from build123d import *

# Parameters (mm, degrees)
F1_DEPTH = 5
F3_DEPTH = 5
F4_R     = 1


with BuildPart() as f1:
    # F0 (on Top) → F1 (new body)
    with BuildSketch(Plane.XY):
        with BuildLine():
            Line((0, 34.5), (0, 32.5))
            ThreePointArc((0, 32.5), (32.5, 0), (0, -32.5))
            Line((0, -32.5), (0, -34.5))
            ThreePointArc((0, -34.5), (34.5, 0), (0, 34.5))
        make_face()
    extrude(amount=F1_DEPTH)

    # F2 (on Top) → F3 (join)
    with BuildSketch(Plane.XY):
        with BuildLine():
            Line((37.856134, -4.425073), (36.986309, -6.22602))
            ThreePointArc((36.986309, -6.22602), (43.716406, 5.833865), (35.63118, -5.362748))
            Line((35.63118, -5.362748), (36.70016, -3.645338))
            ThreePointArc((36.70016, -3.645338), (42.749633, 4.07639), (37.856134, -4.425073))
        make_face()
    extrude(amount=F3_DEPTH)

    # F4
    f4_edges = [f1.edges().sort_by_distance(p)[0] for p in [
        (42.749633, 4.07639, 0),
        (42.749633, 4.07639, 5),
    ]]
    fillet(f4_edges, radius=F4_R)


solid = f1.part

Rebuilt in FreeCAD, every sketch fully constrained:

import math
import FreeCAD as App
import Part
import Sketcher

V = App.Vector


def edges_at(feature, points):
    """Names of the edges that pass closest to the given points."""
    edges = feature.Shape.Edges
    near = lambda p: min(range(len(edges)), key=lambda i: edges[i].distToShape(Part.Vertex(*p))[0])
    return sorted({f"Edge{near(p) + 1}" for p in points})

doc = App.newDocument("Part")
body = doc.addObject("PartDesign::Body", "Body")

# Sketch on XY plane
sketch1 = body.newObject("Sketcher::SketchObject", "Sketch")
sketch1.AttachmentSupport = (doc.getObject("XY_Plane"), [""])
sketch1.MapMode = "FlatFace"
sketch1.addGeometry([
    Part.LineSegment(V(0, 34.5, 0), V(0, 32.5, 0)),
    Part.ArcOfCircle(Part.Circle(V(0, 0, 0), V(0, 0, 1), 32.5), math.radians(-90), math.radians(90)),
    Part.LineSegment(V(0, -32.5, 0), V(0, -34.5, 0)),
    Part.ArcOfCircle(Part.Circle(V(0, 0, 0), V(0, 0, 1), 34.5), math.radians(-90), math.radians(90)),
], False)
sketch1.addConstraint([
    Sketcher.Constraint("Coincident", 0, 2, 1, 2),
    Sketcher.Constraint("Coincident", 1, 1, 2, 1),
    Sketcher.Constraint("Coincident", 2, 2, 3, 1),
    Sketcher.Constraint("Coincident", 3, 2, 0, 1),
    Sketcher.Constraint("Vertical", 0),
    Sketcher.Constraint("Vertical", 2),
    Sketcher.Constraint("Coincident", 1, 3, -1, 1),
    Sketcher.Constraint("Coincident", 3, 3, -1, 1),
    Sketcher.Constraint("PointOnObject", 0, 2, -2),
    Sketcher.Constraint("PointOnObject", 1, 1, -2),
    Sketcher.Constraint("Radius", 1, 32.5),
    Sketcher.Constraint("Radius", 3, 34.5),
])
pad1 = body.newObject("PartDesign::Pad", "Pad")
pad1.Profile = sketch1
pad1.Length = 5

# Sketch on XY plane
sketch2 = body.newObject("Sketcher::SketchObject", "Sketch001")
sketch2.AttachmentSupport = (doc.getObject("XY_Plane"), [""])
sketch2.MapMode = "FlatFace"
sketch2.addGeometry([
    Part.LineSegment(V(37.9, -4.4, 0), V(37, -6.2, 0)),
    Part.ArcOfCircle(Part.Circle(V(40, 0, 0), V(0, 0, 1), 6.9), math.radians(-116), math.radians(231)),
    Part.LineSegment(V(35.6, -5.4, 0), V(36.7, -3.6, 0)),
    Part.ArcOfCircle(Part.Circle(V(40, 0, 0), V(0, 0, 1), 4.9), math.radians(-116), math.radians(228)),
], False)
sketch2.addConstraint([
    Sketcher.Constraint("Coincident", 0, 2, 1, 1),
    Sketcher.Constraint("Coincident", 1, 2, 2, 1),
    Sketcher.Constraint("Coincident", 2, 2, 3, 2),
    Sketcher.Constraint("Coincident", 3, 1, 0, 1),
    Sketcher.Constraint("Coincident", 3, 3, 1, 3),
    Sketcher.Constraint("PointOnObject", 1, 3, -1),
    Sketcher.Constraint("Distance", 0, 2.000001),
    Sketcher.Constraint("DistanceX", -1, 1, 1, 3, 40.000001),
    Sketcher.Constraint("Radius", 1, 6.917055),
    Sketcher.Constraint("DistanceX", -1, 1, 0, 2, 36.986309),
    Sketcher.Constraint("DistanceX", -1, 1, 1, 2, 35.63118),
    Sketcher.Constraint("DistanceX", -1, 1, 2, 2, 36.70016),
    Sketcher.Constraint("DistanceX", -1, 1, 3, 1, 37.856134),
])
pad2 = body.newObject("PartDesign::Pad", "Pad001")
pad2.Profile = sketch2
pad2.Length = 5
doc.recompute()

fillet = body.newObject("PartDesign::Fillet", "Fillet")
fillet.Base = (pad2, edges_at(pad2, [(42.75, 4.076, 0), (42.75, 4.076, 5)]))
fillet.Radius = 1

doc.recompute()
